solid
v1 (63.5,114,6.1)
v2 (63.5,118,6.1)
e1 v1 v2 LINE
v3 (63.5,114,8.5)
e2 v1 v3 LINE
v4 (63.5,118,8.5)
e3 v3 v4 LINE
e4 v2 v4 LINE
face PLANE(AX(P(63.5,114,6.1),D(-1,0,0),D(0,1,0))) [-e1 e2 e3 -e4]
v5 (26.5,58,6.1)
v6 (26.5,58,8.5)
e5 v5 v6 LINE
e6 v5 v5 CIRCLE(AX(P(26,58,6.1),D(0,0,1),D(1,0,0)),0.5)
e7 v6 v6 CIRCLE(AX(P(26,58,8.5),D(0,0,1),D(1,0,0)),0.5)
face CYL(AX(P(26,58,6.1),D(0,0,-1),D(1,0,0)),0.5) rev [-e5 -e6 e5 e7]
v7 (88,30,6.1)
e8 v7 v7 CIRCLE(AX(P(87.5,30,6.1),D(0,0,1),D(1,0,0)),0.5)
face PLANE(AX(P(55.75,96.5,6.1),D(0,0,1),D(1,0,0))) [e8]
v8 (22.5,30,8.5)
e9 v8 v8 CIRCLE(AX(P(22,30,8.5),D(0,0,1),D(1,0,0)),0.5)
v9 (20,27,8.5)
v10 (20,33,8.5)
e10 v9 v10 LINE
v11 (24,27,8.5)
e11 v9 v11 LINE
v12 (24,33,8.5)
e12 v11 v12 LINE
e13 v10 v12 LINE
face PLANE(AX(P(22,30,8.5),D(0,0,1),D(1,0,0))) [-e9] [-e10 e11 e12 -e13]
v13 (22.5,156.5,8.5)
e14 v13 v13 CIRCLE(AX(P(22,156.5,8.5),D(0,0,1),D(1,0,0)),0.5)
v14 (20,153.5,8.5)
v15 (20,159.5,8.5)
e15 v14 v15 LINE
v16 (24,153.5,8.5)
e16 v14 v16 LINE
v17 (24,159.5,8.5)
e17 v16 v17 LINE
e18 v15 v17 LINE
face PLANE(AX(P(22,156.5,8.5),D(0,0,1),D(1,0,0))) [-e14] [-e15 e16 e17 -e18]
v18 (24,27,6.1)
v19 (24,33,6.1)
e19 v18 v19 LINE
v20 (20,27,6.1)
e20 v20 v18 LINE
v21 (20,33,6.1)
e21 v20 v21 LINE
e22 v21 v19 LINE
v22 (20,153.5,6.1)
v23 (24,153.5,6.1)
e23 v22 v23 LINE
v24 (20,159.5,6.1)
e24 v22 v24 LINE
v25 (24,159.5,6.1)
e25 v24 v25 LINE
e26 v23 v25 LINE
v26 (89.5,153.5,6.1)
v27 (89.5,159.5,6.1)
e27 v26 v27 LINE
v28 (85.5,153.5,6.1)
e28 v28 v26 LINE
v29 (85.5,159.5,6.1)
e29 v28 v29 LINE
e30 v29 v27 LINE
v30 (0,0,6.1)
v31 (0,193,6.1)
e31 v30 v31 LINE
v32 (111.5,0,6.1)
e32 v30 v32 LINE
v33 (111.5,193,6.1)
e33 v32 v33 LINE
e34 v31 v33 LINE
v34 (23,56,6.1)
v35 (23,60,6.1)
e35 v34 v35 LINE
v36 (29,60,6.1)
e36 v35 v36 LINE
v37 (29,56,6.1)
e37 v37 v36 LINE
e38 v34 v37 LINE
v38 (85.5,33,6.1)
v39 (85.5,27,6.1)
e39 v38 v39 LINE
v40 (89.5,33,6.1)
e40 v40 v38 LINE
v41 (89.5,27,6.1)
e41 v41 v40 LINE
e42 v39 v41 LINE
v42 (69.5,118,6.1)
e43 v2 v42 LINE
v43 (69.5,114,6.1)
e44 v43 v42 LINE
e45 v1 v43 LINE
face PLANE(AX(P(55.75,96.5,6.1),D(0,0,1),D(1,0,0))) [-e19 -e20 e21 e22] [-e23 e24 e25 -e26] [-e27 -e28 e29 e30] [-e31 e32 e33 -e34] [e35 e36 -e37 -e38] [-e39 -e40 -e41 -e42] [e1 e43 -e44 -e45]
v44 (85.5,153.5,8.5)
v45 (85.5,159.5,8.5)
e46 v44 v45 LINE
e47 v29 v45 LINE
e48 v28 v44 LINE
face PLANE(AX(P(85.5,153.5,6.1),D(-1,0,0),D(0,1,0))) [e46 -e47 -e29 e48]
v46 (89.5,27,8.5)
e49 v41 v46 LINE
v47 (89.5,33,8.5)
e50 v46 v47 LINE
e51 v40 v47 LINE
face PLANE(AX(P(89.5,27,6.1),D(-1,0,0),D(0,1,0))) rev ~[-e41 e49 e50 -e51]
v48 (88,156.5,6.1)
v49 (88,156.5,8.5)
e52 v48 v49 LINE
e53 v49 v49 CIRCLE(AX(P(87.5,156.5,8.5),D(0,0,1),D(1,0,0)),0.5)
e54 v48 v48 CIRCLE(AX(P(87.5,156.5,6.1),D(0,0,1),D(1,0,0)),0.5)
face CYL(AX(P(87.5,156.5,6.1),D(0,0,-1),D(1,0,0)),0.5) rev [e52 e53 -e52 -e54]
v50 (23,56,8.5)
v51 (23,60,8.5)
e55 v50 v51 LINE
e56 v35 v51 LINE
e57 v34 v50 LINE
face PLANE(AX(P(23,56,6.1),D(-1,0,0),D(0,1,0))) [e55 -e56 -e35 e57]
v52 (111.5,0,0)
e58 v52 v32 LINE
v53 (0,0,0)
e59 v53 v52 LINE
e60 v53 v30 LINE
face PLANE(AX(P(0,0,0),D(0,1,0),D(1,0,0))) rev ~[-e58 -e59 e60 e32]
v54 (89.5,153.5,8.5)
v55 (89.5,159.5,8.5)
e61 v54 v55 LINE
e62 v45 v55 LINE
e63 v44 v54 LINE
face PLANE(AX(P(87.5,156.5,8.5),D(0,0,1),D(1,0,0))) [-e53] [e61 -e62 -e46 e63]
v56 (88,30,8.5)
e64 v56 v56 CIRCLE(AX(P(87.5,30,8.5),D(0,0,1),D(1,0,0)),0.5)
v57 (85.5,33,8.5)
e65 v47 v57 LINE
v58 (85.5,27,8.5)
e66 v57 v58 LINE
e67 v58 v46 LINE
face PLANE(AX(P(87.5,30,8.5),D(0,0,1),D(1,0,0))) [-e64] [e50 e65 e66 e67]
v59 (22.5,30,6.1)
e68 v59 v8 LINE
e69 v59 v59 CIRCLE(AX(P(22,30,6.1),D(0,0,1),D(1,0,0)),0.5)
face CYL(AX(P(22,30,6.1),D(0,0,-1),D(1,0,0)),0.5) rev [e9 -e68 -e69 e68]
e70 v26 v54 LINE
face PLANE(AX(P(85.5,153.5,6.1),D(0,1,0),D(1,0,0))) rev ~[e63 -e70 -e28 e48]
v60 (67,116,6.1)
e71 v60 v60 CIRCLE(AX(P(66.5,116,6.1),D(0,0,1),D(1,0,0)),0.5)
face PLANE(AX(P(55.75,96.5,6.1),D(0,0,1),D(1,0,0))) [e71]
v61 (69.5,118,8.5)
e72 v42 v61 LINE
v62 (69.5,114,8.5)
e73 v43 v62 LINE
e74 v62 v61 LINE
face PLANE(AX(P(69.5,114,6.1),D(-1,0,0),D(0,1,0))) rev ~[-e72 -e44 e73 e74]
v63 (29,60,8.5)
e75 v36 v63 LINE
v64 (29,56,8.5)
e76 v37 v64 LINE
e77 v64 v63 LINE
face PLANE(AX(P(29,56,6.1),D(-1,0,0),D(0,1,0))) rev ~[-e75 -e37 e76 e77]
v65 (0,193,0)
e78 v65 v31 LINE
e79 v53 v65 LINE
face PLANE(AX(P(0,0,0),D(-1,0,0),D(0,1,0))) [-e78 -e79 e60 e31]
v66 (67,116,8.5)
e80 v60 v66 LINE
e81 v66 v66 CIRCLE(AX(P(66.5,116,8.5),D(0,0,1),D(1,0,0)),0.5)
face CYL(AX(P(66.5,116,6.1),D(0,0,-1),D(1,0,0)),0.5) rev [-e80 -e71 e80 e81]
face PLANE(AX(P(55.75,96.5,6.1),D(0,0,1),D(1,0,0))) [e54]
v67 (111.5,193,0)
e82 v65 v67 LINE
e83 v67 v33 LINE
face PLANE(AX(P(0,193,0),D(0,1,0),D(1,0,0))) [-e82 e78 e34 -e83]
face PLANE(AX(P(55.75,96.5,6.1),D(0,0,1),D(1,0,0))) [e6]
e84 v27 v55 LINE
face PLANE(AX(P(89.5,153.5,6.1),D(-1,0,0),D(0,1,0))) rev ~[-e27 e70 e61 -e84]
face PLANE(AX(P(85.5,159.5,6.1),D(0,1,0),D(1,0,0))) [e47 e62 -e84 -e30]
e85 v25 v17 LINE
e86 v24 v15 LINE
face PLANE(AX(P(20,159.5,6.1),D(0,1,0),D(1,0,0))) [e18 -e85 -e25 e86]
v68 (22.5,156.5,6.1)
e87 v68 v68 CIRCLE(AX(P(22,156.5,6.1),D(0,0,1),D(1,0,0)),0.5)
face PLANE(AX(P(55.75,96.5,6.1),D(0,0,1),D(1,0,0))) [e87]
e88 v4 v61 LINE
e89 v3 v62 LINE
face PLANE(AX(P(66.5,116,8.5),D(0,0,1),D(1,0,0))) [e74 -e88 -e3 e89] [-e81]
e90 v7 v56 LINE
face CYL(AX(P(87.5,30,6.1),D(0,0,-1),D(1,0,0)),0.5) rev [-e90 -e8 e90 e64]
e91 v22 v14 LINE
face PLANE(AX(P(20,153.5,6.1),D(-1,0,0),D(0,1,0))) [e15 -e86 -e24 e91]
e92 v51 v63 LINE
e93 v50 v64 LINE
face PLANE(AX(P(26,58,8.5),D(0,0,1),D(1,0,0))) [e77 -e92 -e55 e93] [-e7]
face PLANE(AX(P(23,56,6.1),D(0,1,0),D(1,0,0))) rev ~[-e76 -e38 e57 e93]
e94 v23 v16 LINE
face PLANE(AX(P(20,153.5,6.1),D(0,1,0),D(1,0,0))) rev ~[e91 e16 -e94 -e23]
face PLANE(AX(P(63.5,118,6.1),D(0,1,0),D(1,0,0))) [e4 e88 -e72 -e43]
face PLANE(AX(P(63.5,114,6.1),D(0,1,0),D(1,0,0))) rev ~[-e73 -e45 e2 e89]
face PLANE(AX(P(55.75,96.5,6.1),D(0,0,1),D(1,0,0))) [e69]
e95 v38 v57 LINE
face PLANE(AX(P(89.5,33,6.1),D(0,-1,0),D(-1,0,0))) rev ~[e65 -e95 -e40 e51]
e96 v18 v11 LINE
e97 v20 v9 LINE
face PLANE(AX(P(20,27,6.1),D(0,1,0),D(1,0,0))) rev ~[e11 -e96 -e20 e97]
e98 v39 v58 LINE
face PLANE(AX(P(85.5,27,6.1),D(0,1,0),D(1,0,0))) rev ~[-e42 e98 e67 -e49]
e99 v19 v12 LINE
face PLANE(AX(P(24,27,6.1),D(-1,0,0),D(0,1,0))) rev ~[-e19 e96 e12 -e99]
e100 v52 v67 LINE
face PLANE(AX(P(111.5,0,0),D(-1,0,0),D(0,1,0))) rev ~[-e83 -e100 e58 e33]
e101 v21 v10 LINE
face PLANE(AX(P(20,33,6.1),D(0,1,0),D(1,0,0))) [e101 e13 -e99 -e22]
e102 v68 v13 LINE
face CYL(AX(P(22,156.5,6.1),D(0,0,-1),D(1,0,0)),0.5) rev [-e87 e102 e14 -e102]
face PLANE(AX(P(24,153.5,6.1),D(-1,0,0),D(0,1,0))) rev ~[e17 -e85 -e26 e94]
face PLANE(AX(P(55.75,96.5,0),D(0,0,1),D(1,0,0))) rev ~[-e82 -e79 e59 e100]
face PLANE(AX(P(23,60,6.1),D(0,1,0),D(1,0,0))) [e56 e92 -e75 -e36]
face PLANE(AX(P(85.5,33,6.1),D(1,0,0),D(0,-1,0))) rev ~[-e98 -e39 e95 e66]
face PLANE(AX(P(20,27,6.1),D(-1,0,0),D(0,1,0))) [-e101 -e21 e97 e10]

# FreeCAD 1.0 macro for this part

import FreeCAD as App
import Part
import Sketcher

V = App.Vector
Q = App.Units.Quantity

doc = App.newDocument("Part")
body = doc.addObject("PartDesign::Body", "Body")

sketch1 = body.newObject("Sketcher::SketchObject", "Sketch")
sketch1.AttachmentSupport = (doc.getObject("XY_Plane"), [""])
sketch1.MapMode = "FlatFace"
sketch1.addGeometry([
    Part.LineSegment(V(0, 193, 0), V(0, 0, 0)),
    Part.LineSegment(V(0, 0, 0), V(112, 0, 0)),
    Part.LineSegment(V(112, 0, 0), V(112, 193, 0)),
    Part.LineSegment(V(112, 193, 0), V(0, 193, 0)),
], False)
sketch1.addConstraint([
    Sketcher.Constraint("Coincident", 0, 2, 1, 1),
    Sketcher.Constraint("Coincident", 1, 2, 2, 1),
    Sketcher.Constraint("Coincident", 2, 2, 3, 1),
    Sketcher.Constraint("Coincident", 3, 2, 0, 1),
    Sketcher.Constraint("Vertical", 0),
    Sketcher.Constraint("Horizontal", 1),
    Sketcher.Constraint("Vertical", 2),
    Sketcher.Constraint("Horizontal", 3),
    Sketcher.Constraint("Coincident", 0, 2, -1, 1),
    Sketcher.Constraint("DistanceY", 0, 2, 0, 1, Q("193 mm")),
    Sketcher.Constraint("DistanceX", 1, 1, 1, 2, Q("111.5 mm")),
])
pad1 = body.newObject("PartDesign::Pad", "Pad")
pad1.Profile = sketch1
pad1.Length = 6.1

sketch2 = body.newObject("Sketcher::SketchObject", "Sketch001")
sketch2.AttachmentSupport = (doc.getObject("XY_Plane"), [""])
sketch2.MapMode = "FlatFace"
sketch2.AttachmentOffset = App.Placement(V(0, 0, 6.1), App.Rotation())
sketch2.addGeometry([
    Part.LineSegment(V(20, 159.5, 0), V(20, 153.5, 0)),
    Part.LineSegment(V(20, 153.5, 0), V(24, 153.5, 0)),
    Part.LineSegment(V(24, 153.5, 0), V(24, 159.5, 0)),
    Part.LineSegment(V(24, 159.5, 0), V(20, 159.5, 0)),
    Part.Circle(V(22, 156.5, 0), V(0, 0, 1), 0.5),
    Part.LineSegment(V(85.5, 33, 0), V(85.5, 27, 0)),
    Part.LineSegment(V(85.5, 27, 0), V(89.5, 27, 0)),
    Part.LineSegment(V(89.5, 27, 0), V(89.5, 33, 0)),
    Part.LineSegment(V(89.5, 33, 0), V(85.5, 33, 0)),
    Part.Circle(V(87.5, 30, 0), V(0, 0, 1), 0.5),
    Part.LineSegment(V(20, 33, 0), V(20, 27, 0)),
    Part.LineSegment(V(20, 27, 0), V(24, 27, 0)),
    Part.LineSegment(V(24, 27, 0), V(24, 33, 0)),
    Part.LineSegment(V(24, 33, 0), V(20, 33, 0)),
    Part.Circle(V(22, 30, 0), V(0, 0, 1), 0.5),
    Part.LineSegment(V(85.5, 159.5, 0), V(85.5, 153.5, 0)),
    Part.LineSegment(V(85.5, 153.5, 0), V(89.5, 153.5, 0)),
    Part.LineSegment(V(89.5, 153.5, 0), V(89.5, 159.5, 0)),
    Part.LineSegment(V(89.5, 159.5, 0), V(85.5, 159.5, 0)),
    Part.Circle(V(87.5, 156.5, 0), V(0, 0, 1), 0.5),
    Part.LineSegment(V(23, 60, 0), V(23, 56, 0)),
    Part.LineSegment(V(23, 56, 0), V(29, 56, 0)),
    Part.LineSegment(V(29, 56, 0), V(29, 60, 0)),
    Part.LineSegment(V(29, 60, 0), V(23, 60, 0)),
    Part.Circle(V(26, 58, 0), V(0, 0, 1), 0.5),
    Part.LineSegment(V(63.5, 118, 0), V(63.5, 114, 0)),
    Part.LineSegment(V(63.5, 114, 0), V(69.5, 114, 0)),
    Part.LineSegment(V(69.5, 114, 0), V(69.5, 118, 0)),
    Part.LineSegment(V(69.5, 118, 0), V(63.5, 118, 0)),
    Part.Circle(V(66.5, 116, 0), V(0, 0, 1), 0.5),
], False)
sketch2.addConstraint([
    Sketcher.Constraint("Coincident", 0, 2, 1, 1),
    Sketcher.Constraint("Coincident", 1, 2, 2, 1),
    Sketcher.Constraint("Coincident", 2, 2, 3, 1),
    Sketcher.Constraint("Coincident", 3, 2, 0, 1),
    Sketcher.Constraint("Coincident", 5, 2, 6, 1),
    Sketcher.Constraint("Coincident", 6, 2, 7, 1),
    Sketcher.Constraint("Coincident", 7, 2, 8, 1),
    Sketcher.Constraint("Coincident", 8, 2, 5, 1),
    Sketcher.Constraint("Coincident", 10, 2, 11, 1),
    Sketcher.Constraint("Coincident", 11, 2, 12, 1),
    Sketcher.Constraint("Coincident", 12, 2, 13, 1),
    Sketcher.Constraint("Coincident", 13, 2, 10, 1),
    Sketcher.Constraint("Coincident", 15, 2, 16, 1),
    Sketcher.Constraint("Coincident", 16, 2, 17, 1),
    Sketcher.Constraint("Coincident", 17, 2, 18, 1),
    Sketcher.Constraint("Coincident", 18, 2, 15, 1),
    Sketcher.Constraint("Coincident", 20, 2, 21, 1),
    Sketcher.Constraint("Coincident", 21, 2, 22, 1),
    Sketcher.Constraint("Coincident", 22, 2, 23, 1),
    Sketcher.Constraint("Coincident", 23, 2, 20, 1),
    Sketcher.Constraint("Coincident", 25, 2, 26, 1),
    Sketcher.Constraint("Coincident", 26, 2, 27, 1),
    Sketcher.Constraint("Coincident", 27, 2, 28, 1),
    Sketcher.Constraint("Coincident", 28, 2, 25, 1),
    Sketcher.Constraint("Vertical", 0),
    Sketcher.Constraint("Horizontal", 1),
    Sketcher.Constraint("Vertical", 2),
    Sketcher.Constraint("Horizontal", 3),
    Sketcher.Constraint("Vertical", 5),
    Sketcher.Constraint("Horizontal", 6),
    Sketcher.Constraint("Vertical", 7),
    Sketcher.Constraint("Horizontal", 8),
    Sketcher.Constraint("Vertical", 10),
    Sketcher.Constraint("Horizontal", 11),
    Sketcher.Constraint("Vertical", 12),
    Sketcher.Constraint("Horizontal", 13),
    Sketcher.Constraint("Vertical", 15),
    Sketcher.Constraint("Horizontal", 16),
    Sketcher.Constraint("Vertical", 17),
    Sketcher.Constraint("Horizontal", 18),
    Sketcher.Constraint("Vertical", 20),
    Sketcher.Constraint("Horizontal", 21),
    Sketcher.Constraint("Vertical", 22),
    Sketcher.Constraint("Horizontal", 23),
    Sketcher.Constraint("Vertical", 25),
    Sketcher.Constraint("Horizontal", 26),
    Sketcher.Constraint("Vertical", 27),
    Sketcher.Constraint("Horizontal", 28),
    Sketcher.Constraint("Equal", 4, 9),
    Sketcher.Constraint("Equal", 9, 14),
    Sketcher.Constraint("Equal", 14, 19),
    Sketcher.Constraint("Equal", 19, 24),
    Sketcher.Constraint("Equal", 24, 29),
    Sketcher.Constraint("Horizontal", 9, 3, 14, 3),
    Sketcher.Constraint("Horizontal", 4, 3, 19, 3),
    Sketcher.Constraint("Horizontal", 6, 2, 10, 2),
    Sketcher.Constraint("Horizontal", 8, 2, 12, 2),
    Sketcher.Constraint("Horizontal", 1, 2, 15, 2),
    Sketcher.Constraint("Horizontal", 3, 2, 17, 2),
    Sketcher.Constraint("Vertical", 4, 3, 14, 3),
    Sketcher.Constraint("Vertical", 9, 3, 19, 3),
    Sketcher.Constraint("Vertical", 3, 2, 10, 2),
    Sketcher.Constraint("Vertical", 2, 2, 11, 2),
    Sketcher.Constraint("Vertical", 8, 2, 15, 2),
    Sketcher.Constraint("Vertical", 7, 2, 16, 2),
    Sketcher.Constraint("Equal", 3, 6),
    Sketcher.Constraint("Equal", 23, 26),
    Sketcher.Constraint("Equal", 28, 0),
    Sketcher.Constraint("Equal", 2, 5),
    Sketcher.Constraint("Equal", 18, 20),
    Sketcher.Constraint("Equal", 22, 25),
    Sketcher.Constraint("Diameter", 4, Q("1 mm")),
    Sketcher.Constraint("DistanceX", 1, 1, 1, 2, Q("4 mm")),
    Sketcher.Constraint("DistanceX", 21, 1, 21, 2, Q("6 mm")),
    Sketcher.Constraint("DistanceX", -1, 1, 4, 3, Q("22 mm")),
    Sketcher.Constraint("DistanceY", -1, 1, 9, 3, Q("30 mm")),
    Sketcher.Constraint("DistanceX", -1, 1, 24, 3, Q("26 mm")),
    Sketcher.Constraint("DistanceY", -1, 1, 24, 3, Q("58 mm")),
    Sketcher.Constraint("DistanceY", -1, 1, 29, 3, Q("116 mm")),
    Sketcher.Constraint("DistanceX", -1, 1, 0, 2, Q("20 mm")),
    Sketcher.Constraint("DistanceY", -1, 1, 5, 2, Q("27 mm")),
    Sketcher.Constraint("DistanceX", -1, 1, 20, 2, Q("23 mm")),
    Sketcher.Constraint("DistanceY", -1, 1, 20, 2, Q("56 mm")),
    Sketcher.Constraint("DistanceY", -1, 1, 25, 2, Q("114 mm")),
    Sketcher.Constraint("DistanceX", 29, 3, 19, 3, Q("21 mm")),
    Sketcher.Constraint("DistanceY", 0, 2, 4, 3, Q("3 mm")),
    Sketcher.Constraint("DistanceX", 5, 2, 9, 3, Q("2 mm")),
    Sketcher.Constraint("DistanceX", 25, 2, 29, 3, Q("3 mm")),
    Sketcher.Constraint("DistanceY", -1, 1, 4, 3, Q("156.5 mm")),
    Sketcher.Constraint("DistanceX", -1, 1, 9, 3, Q("87.5 mm")),
])
pad2 = body.newObject("PartDesign::Pad", "Pad001")
pad2.Profile = sketch2
pad2.Length = 2.4

doc.recompute()
